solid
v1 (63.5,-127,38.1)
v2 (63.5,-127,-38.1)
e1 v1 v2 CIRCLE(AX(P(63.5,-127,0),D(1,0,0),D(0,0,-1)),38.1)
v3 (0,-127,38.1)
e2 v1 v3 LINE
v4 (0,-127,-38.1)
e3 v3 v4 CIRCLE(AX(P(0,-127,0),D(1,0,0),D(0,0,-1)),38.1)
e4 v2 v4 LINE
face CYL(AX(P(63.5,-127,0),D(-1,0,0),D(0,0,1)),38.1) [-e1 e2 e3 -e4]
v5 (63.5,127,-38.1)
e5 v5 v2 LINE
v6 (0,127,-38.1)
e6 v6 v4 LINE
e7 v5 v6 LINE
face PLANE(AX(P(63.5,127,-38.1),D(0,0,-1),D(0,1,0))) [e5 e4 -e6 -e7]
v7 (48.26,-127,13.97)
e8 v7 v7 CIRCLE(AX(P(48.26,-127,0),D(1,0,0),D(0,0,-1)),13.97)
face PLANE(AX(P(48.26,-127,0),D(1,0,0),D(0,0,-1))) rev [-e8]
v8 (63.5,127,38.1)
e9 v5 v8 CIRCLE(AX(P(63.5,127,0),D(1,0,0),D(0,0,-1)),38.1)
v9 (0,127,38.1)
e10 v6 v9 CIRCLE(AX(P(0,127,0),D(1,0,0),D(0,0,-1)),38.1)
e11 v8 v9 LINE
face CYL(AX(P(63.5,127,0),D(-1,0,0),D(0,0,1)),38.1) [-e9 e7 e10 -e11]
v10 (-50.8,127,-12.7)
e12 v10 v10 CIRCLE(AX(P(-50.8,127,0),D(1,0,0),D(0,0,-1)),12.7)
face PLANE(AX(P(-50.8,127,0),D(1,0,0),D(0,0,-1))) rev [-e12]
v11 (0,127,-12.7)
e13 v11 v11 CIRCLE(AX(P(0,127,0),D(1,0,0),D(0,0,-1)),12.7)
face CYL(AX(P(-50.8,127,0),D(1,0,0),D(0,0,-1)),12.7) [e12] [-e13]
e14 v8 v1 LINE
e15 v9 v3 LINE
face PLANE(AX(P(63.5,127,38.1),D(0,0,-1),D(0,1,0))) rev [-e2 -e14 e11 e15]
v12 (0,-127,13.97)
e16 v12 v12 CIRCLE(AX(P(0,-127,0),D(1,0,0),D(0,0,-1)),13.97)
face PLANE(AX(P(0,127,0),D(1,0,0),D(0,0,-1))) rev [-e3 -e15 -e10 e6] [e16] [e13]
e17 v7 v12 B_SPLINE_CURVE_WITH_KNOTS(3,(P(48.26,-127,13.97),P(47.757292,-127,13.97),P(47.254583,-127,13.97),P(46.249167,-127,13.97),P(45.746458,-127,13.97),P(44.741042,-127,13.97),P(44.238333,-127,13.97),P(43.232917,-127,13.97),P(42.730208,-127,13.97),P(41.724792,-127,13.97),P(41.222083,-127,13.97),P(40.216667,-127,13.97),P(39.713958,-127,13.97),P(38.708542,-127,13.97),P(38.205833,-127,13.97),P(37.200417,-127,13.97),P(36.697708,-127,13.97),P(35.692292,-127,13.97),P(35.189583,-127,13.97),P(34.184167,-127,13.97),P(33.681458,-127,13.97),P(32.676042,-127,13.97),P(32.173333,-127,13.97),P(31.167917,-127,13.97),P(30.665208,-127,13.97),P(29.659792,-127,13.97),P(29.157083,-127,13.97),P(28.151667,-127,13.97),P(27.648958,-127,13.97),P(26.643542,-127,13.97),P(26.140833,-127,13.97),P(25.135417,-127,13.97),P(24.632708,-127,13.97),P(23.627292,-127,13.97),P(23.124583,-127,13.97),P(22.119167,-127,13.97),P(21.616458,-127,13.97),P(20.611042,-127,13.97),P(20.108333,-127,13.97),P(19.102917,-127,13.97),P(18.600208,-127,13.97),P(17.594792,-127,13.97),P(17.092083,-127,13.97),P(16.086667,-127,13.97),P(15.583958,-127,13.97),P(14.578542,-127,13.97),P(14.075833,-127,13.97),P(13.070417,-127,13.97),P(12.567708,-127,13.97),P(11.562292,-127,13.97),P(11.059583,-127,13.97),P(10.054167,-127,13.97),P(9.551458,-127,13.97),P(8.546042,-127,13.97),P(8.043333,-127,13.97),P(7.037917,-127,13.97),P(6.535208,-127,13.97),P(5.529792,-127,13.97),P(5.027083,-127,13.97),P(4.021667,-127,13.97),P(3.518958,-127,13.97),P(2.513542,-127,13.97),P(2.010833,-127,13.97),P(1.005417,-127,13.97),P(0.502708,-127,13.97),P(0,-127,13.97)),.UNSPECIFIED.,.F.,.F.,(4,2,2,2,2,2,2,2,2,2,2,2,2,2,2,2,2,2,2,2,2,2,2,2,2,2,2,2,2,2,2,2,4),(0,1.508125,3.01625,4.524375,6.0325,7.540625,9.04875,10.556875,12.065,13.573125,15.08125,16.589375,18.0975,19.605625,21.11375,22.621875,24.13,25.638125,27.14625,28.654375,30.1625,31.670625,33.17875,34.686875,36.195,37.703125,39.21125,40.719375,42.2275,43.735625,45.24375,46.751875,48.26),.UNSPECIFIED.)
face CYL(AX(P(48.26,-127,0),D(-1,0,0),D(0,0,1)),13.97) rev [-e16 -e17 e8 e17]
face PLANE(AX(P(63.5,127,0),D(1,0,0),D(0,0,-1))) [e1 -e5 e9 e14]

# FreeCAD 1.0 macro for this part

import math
import FreeCAD as App
import Part
import Sketcher
Q = App.Units.Quantity

doc = App.newDocument("Part")
body = doc.addObject("PartDesign::Body", "Body")

# Sketch on YZ plane
sketch1 = body.newObject("Sketcher::SketchObject", "Sketch")
sketch1.AttachmentSupport = (doc.getObject("YZ_Plane"), [""])
sketch1.MapMode = "FlatFace"
sketch1.addGeometry([
    Part.LineSegment(App.Vector(-127, -38.1, 0), App.Vector(127, -38.1, 0)),
    Part.ArcOfCircle(Part.Circle(App.Vector(127, 0, 0), App.Vector(0, 0, 1), 38.1), math.radians(-90), math.radians(90)),
    Part.LineSegment(App.Vector(127, 38.1, 0), App.Vector(-127, 38.1, 0)),
    Part.ArcOfCircle(Part.Circle(App.Vector(-127, 0, 0), App.Vector(0, 0, 1), 38.1), math.radians(90), math.radians(270)),
], False)
sketch1.addConstraint([
    Sketcher.Constraint("Tangent", 0, 2, 1, 1),
    Sketcher.Constraint("Tangent", 1, 2, 2, 1),
    Sketcher.Constraint("Tangent", 2, 2, 3, 1),
    Sketcher.Constraint("Tangent", 3, 2, 0, 1),
    Sketcher.Constraint("Horizontal", 0),
    Sketcher.Constraint("Horizontal", 2),
    Sketcher.Constraint("Symmetric", 1, 3, 3, 3, -1, 1),
    Sketcher.Constraint("Radius", 1, Q("1.5 in")),
    Sketcher.Constraint("DistanceX", 0, 1, 0, 2, Q("10 in")),
])
pad1 = body.newObject("PartDesign::Pad", "Pad")
pad1.Profile = sketch1
pad1.Length = Q("2.5 in")

# Sketch on YZ plane
sketch2 = body.newObject("Sketcher::SketchObject", "Sketch001")
sketch2.AttachmentSupport = (doc.getObject("YZ_Plane"), [""])
sketch2.MapMode = "FlatFace"
sketch2.addGeometry(Part.Circle(App.Vector(-127, 0, 0), App.Vector(0, 0, 1), 13.97), False)
sketch2.addConstraint([
    Sketcher.Constraint("PointOnObject", 0, 3, -1),
    Sketcher.Constraint("Diameter", 0, Q("1.1 in")),
    Sketcher.Constraint("DistanceX", 0, 3, -1, 1, Q("5 in")),
])
pocket1 = body.newObject("PartDesign::Pocket", "Pocket")
pocket1.Profile = sketch2
pocket1.Length = Q("1.9 in")
pocket1.Reversed = True

# Sketch on YZ plane
sketch3 = body.newObject("Sketcher::SketchObject", "Sketch002")
sketch3.AttachmentSupport = (doc.getObject("YZ_Plane"), [""])
sketch3.MapMode = "FlatFace"
sketch3.addGeometry(Part.Circle(App.Vector(127, 0, 0), App.Vector(0, 0, 1), 12.7), False)
sketch3.addConstraint([
    Sketcher.Constraint("PointOnObject", 0, 3, -1),
    Sketcher.Constraint("Diameter", 0, Q("1 in")),
    Sketcher.Constraint("DistanceX", -1, 1, 0, 3, Q("5 in")),
])
pad2 = body.newObject("PartDesign::Pad", "Pad001")
pad2.Profile = sketch3
pad2.Length = Q("2 in")
pad2.Reversed = True

doc.recompute()
